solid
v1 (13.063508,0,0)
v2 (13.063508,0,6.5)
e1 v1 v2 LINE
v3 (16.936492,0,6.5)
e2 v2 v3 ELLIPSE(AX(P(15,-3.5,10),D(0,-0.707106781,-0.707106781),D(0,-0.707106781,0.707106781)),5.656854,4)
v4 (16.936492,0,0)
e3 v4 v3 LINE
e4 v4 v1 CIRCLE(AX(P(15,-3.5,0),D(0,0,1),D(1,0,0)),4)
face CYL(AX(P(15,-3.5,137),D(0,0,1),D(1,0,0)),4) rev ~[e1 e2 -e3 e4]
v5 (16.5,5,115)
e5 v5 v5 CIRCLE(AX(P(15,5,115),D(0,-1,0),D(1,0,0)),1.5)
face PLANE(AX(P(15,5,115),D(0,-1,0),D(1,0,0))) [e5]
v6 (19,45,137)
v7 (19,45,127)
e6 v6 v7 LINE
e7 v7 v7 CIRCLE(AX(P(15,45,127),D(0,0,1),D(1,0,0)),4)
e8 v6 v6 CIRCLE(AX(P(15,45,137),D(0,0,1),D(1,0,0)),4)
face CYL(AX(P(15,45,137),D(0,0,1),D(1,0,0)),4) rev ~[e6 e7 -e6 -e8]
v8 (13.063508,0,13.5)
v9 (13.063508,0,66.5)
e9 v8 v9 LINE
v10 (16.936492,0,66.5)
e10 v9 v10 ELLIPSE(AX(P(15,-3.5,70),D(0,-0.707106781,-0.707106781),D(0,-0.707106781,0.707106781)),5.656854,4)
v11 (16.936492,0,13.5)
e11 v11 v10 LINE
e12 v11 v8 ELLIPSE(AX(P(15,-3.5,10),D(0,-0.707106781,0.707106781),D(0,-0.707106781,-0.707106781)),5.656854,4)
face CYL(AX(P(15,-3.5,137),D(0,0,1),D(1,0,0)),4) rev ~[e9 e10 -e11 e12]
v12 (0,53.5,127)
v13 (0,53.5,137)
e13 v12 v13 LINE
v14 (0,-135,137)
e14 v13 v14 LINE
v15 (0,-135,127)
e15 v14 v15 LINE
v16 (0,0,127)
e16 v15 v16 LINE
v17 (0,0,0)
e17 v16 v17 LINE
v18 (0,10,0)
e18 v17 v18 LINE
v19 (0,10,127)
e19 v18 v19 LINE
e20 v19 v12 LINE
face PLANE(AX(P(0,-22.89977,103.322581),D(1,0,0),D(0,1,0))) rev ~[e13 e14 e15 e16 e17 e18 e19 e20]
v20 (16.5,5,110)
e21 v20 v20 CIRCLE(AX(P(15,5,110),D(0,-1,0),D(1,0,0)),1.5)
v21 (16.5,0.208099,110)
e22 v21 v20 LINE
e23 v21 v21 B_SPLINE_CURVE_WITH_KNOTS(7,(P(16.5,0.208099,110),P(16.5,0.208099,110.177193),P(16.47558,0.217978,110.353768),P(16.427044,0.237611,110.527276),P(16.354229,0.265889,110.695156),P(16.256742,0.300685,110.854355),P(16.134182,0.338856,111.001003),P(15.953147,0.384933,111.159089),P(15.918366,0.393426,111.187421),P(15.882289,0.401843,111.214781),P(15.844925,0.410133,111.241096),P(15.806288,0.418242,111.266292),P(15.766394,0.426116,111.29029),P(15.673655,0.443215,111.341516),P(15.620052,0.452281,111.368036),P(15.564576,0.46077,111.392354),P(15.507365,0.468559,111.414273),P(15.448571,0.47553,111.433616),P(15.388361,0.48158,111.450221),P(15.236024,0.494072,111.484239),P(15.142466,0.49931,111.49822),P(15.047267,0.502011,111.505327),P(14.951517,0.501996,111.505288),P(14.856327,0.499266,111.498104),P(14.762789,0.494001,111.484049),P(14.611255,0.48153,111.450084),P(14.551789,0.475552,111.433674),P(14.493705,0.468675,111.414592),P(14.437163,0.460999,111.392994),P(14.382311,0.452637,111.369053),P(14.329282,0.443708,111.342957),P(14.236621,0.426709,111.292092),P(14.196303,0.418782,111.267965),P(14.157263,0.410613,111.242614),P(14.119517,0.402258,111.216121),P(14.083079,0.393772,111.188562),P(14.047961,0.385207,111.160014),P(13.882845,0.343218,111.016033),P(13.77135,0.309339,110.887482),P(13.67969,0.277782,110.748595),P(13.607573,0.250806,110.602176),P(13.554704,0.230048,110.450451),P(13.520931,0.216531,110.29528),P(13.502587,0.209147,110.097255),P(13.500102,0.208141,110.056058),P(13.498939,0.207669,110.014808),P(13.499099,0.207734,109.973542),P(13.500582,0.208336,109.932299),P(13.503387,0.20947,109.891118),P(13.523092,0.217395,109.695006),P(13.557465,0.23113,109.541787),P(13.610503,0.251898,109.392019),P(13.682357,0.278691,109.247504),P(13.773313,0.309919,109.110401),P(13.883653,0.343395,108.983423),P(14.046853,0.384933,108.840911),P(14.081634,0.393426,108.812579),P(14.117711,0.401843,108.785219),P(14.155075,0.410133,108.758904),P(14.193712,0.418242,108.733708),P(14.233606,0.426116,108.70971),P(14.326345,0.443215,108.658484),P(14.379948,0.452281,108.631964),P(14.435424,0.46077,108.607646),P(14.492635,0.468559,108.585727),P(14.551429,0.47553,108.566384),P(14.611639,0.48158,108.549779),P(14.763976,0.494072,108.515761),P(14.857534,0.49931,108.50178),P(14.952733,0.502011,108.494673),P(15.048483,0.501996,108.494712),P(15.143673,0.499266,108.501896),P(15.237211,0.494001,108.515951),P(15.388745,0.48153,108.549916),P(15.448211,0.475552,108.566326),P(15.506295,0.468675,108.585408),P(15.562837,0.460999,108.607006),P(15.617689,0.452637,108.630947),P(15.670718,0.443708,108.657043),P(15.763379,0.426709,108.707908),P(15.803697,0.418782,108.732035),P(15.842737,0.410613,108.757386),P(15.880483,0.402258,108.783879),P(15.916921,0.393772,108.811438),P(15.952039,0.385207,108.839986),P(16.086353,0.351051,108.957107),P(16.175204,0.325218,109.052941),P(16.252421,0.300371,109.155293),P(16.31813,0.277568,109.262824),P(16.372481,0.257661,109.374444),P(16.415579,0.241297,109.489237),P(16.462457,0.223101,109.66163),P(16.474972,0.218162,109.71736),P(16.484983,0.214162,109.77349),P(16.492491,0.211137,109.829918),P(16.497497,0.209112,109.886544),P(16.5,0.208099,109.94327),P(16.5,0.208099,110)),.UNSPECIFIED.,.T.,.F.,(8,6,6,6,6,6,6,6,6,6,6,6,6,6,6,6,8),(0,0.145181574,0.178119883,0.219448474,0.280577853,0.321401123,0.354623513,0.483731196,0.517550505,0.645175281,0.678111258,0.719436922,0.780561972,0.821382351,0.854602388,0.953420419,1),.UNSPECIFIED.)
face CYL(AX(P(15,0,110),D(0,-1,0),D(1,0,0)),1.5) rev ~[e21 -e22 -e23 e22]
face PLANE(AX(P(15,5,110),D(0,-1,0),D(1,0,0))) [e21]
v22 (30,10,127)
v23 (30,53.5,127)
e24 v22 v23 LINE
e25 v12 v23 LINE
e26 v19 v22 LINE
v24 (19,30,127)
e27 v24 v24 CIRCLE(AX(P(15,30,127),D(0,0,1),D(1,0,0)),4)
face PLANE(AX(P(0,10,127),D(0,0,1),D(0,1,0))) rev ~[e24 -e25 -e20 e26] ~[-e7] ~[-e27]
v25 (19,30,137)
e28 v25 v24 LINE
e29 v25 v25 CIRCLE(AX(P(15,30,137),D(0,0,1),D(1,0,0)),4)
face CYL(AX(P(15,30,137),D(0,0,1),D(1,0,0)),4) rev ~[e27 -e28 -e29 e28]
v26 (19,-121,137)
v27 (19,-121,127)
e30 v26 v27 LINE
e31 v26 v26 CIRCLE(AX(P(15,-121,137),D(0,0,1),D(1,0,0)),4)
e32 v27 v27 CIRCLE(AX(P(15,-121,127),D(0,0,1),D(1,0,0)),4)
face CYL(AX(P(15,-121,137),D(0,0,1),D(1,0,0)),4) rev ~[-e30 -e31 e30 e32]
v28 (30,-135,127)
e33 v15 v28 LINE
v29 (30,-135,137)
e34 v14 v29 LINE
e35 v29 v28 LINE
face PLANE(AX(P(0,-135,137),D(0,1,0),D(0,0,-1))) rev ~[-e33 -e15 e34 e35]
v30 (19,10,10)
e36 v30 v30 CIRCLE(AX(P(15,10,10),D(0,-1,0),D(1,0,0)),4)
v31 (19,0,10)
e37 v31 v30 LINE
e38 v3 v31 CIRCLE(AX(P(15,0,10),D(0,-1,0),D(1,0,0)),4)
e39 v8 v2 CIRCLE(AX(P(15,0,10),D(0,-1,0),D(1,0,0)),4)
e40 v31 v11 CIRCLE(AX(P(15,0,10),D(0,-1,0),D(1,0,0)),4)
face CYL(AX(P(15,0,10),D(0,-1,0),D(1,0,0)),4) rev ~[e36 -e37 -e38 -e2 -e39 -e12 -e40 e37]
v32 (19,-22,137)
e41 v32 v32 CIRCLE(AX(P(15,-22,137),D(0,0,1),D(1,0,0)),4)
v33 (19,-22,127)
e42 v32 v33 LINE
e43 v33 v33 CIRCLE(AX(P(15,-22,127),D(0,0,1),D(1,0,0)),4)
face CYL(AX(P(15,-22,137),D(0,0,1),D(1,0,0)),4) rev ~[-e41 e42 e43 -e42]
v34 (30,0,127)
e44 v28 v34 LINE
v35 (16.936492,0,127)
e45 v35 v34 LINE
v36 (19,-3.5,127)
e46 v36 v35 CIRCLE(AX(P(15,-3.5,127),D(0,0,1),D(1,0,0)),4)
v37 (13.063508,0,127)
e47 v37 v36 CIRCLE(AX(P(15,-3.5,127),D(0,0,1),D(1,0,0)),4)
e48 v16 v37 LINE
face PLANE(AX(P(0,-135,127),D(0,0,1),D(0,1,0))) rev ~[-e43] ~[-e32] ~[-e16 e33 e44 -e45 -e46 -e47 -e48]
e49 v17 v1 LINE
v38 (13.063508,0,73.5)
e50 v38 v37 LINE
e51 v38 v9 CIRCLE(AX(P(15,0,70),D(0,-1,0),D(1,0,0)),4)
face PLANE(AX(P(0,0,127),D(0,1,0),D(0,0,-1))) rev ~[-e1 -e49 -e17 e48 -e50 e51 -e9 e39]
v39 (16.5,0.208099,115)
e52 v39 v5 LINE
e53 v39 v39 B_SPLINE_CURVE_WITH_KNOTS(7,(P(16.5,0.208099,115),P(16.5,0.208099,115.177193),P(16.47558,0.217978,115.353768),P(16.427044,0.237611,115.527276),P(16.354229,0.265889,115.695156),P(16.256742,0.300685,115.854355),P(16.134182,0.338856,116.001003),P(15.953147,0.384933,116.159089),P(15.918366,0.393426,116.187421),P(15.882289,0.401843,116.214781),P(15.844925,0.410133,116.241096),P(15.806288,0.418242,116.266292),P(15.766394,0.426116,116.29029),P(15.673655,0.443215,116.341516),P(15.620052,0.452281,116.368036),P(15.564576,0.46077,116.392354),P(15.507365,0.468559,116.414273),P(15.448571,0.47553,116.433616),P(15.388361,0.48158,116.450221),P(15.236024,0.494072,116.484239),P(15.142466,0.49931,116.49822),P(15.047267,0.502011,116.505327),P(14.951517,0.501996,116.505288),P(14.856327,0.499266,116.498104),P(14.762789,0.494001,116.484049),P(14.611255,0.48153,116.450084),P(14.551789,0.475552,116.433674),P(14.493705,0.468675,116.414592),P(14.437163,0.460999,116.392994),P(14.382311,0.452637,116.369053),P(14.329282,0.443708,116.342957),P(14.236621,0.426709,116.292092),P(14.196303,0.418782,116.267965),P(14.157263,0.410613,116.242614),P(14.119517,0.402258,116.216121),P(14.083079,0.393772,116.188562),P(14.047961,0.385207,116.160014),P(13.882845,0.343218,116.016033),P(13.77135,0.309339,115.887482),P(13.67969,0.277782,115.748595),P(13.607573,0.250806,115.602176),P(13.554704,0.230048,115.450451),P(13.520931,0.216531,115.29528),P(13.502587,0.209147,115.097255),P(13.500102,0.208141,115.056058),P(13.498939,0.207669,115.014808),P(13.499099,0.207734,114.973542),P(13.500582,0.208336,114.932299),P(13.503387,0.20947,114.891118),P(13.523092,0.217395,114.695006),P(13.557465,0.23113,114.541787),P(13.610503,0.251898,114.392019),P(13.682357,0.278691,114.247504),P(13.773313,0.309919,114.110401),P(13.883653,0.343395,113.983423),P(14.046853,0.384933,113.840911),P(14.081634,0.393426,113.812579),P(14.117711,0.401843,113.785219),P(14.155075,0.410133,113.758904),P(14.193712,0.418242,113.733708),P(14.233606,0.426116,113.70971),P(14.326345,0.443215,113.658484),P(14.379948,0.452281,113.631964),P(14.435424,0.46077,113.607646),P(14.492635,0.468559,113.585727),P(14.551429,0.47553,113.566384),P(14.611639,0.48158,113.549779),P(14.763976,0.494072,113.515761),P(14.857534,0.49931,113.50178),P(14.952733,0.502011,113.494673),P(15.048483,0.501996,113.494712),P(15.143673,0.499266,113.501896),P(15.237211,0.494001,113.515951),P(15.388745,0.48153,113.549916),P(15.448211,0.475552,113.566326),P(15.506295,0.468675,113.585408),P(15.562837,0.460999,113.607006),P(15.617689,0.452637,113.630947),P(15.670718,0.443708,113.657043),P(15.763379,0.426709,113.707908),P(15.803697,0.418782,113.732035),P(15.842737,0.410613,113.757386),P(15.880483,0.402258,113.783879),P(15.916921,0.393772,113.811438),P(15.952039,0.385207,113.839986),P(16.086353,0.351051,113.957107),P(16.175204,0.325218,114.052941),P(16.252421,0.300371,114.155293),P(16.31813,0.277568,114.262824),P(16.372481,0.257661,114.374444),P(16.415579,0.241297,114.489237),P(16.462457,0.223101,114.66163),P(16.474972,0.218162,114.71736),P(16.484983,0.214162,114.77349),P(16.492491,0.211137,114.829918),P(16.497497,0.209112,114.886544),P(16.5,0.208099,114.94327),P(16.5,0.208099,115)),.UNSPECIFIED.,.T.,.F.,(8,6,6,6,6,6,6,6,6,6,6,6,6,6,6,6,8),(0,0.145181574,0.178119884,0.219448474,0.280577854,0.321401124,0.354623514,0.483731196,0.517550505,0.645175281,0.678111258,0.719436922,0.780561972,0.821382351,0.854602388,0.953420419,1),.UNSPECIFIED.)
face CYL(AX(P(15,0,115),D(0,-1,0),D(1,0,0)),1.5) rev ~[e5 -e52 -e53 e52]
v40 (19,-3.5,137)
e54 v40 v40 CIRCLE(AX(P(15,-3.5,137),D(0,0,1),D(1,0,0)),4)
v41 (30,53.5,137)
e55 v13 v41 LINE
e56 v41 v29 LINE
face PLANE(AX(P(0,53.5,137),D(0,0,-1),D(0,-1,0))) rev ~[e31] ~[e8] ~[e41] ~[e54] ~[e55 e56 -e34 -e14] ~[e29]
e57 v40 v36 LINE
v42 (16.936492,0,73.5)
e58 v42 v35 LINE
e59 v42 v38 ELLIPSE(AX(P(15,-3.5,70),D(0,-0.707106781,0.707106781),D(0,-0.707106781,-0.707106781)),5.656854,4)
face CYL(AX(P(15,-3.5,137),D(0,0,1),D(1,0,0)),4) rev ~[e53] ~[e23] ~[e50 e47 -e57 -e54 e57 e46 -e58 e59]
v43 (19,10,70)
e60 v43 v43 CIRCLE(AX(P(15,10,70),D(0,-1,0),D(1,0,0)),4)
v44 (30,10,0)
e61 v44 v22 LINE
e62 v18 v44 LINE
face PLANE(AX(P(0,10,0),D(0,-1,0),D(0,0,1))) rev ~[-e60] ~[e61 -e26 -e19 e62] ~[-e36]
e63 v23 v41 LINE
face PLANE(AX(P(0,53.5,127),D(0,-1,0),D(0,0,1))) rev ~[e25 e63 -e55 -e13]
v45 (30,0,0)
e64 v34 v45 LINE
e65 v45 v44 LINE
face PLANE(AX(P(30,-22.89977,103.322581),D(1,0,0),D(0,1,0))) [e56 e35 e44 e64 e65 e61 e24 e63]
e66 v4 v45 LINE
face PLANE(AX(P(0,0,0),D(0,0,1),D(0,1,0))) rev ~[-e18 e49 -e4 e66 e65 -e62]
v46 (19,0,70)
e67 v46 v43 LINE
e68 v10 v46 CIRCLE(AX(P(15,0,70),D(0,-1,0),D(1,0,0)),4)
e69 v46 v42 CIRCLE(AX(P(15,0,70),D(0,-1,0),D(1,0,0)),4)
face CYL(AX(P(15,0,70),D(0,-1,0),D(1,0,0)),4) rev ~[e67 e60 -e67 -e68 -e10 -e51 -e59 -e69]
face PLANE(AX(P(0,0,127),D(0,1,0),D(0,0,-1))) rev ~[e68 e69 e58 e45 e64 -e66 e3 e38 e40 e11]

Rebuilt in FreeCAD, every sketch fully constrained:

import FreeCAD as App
import Part
import Sketcher
from FreeCAD import Vector

doc = App.newDocument("Part")
body = doc.addObject("PartDesign::Body", "Body")

# Sketch on YZ plane
sketch1 = body.newObject("Sketcher::SketchObject", "Sketch")
sketch1.AttachmentSupport = (doc.getObject("YZ_Plane"), [""])
sketch1.MapMode = "FlatFace"
sketch1.addGeometry([
    Part.LineSegment(Vector(0, 127, 0), Vector(0, 0, 0)),  # 0
    Part.LineSegment(Vector(0, 0, 0), Vector(10, 0, 0)),  # 1
    Part.LineSegment(Vector(10, 0, 0), Vector(10, 127, 0)),  # 2
    Part.LineSegment(Vector(10, 127, 0), Vector(53.5, 127, 0)),  # 3
    Part.LineSegment(Vector(53.5, 127, 0), Vector(53.5, 137, 0)),  # 4
    Part.LineSegment(Vector(53.5, 137, 0), Vector(-135, 137, 0)),  # 5
    Part.LineSegment(Vector(-135, 137, 0), Vector(-135, 127, 0)),  # 6
    Part.LineSegment(Vector(-135, 127, 0), Vector(0, 127, 0)),  # 7
], False)
sketch1.addConstraint([
    Sketcher.Constraint("Coincident", 0, 2, 1, 1),
    Sketcher.Constraint("Coincident", 1, 2, 2, 1),
    Sketcher.Constraint("Coincident", 2, 2, 3, 1),
    Sketcher.Constraint("Coincident", 3, 2, 4, 1),
    Sketcher.Constraint("Coincident", 4, 2, 5, 1),
    Sketcher.Constraint("Coincident", 5, 2, 6, 1),
    Sketcher.Constraint("Coincident", 6, 2, 7, 1),
    Sketcher.Constraint("Coincident", 7, 2, 0, 1),
    Sketcher.Constraint("Vertical", 0),
    Sketcher.Constraint("Horizontal", 1),
    Sketcher.Constraint("Vertical", 2),
    Sketcher.Constraint("Horizontal", 3),
    Sketcher.Constraint("Vertical", 4),
    Sketcher.Constraint("Horizontal", 5),
    Sketcher.Constraint("Vertical", 6),
    Sketcher.Constraint("Horizontal", 7),
    Sketcher.Constraint("Coincident", 0, 2, -1, 1),
    Sketcher.Constraint("Horizontal", 3, 2, 6, 2),
    Sketcher.Constraint("Equal", 1, 4),
    Sketcher.Constraint("DistanceX", 1, 1, 1, 2, 10.0),
    Sketcher.Constraint("DistanceX", 7, 1, 7, 2, 135.0),
    Sketcher.Constraint("DistanceY", 0, 2, 0, 1, 127.0),
    Sketcher.Constraint("DistanceX", 3, 1, 3, 2, 43.5),
])
pad1 = body.newObject("PartDesign::Pad", "Pad")
pad1.Profile = sketch1
pad1.Length = 30

# Sketch on XZ plane
sketch2 = body.newObject("Sketcher::SketchObject", "Sketch001")
sketch2.AttachmentSupport = (doc.getObject("XZ_Plane"), [""])
sketch2.MapMode = "FlatFace"
sketch2.addGeometry([
    Part.Circle(Vector(15, 70, 0), Vector(0, 0, 1), 4),
    Part.Circle(Vector(15, 10, 0), Vector(0, 0, 1), 4),
], False)
sketch2.addConstraint([
    Sketcher.Constraint("Equal", 0, 1),
    Sketcher.Constraint("Vertical", 0, 3, 1, 3),
    Sketcher.Constraint("Diameter", 0, 8.0),
    Sketcher.Constraint("DistanceX", -1, 1, 0, 3, 15.0),
    Sketcher.Constraint("DistanceY", -1, 1, 0, 3, 70.0),
    Sketcher.Constraint("DistanceY", -1, 1, 1, 3, 10.0),
])
pocket1 = body.newObject("PartDesign::Pocket", "Pocket")
pocket1.Profile = sketch2
pocket1.Type = "ThroughAll"

# Sketch on XY plane
sketch3 = body.newObject("Sketcher::SketchObject", "Sketch002")
sketch3.AttachmentSupport = (doc.getObject("XY_Plane"), [""])
sketch3.MapMode = "FlatFace"
sketch3.AttachmentOffset = App.Placement(Vector(0, 0, 137), App.Rotation())
sketch3.addGeometry([
    Part.Circle(Vector(15, 45, 0), Vector(0, 0, 1), 4),  # 0
    Part.Circle(Vector(15, 30, 0), Vector(0, 0, 1), 4),  # 1
    Part.Circle(Vector(15, -3.5, 0), Vector(0, 0, 1), 4),  # 2
    Part.Circle(Vector(15, -22, 0), Vector(0, 0, 1), 4),  # 3
    Part.Circle(Vector(15, -121, 0), Vector(0, 0, 1), 4),  # 4
], False)
sketch3.addConstraint([
    Sketcher.Constraint("Equal", 0, 1),
    Sketcher.Constraint("Equal", 1, 2),
    Sketcher.Constraint("Equal", 2, 3),
    Sketcher.Constraint("Equal", 3, 4),
    Sketcher.Constraint("Vertical", 0, 3, 1, 3),
    Sketcher.Constraint("Vertical", 1, 3, 2, 3),
    Sketcher.Constraint("Vertical", 2, 3, 3, 3),
    Sketcher.Constraint("Vertical", 3, 3, 4, 3),
    Sketcher.Constraint("Diameter", 0, 8.0),
    Sketcher.Constraint("DistanceX", -1, 1, 0, 3, 15.0),
    Sketcher.Constraint("DistanceY", -1, 1, 0, 3, 45.0),
    Sketcher.Constraint("DistanceY", -1, 1, 1, 3, 30.0),
    Sketcher.Constraint("DistanceY", 3, 3, -1, 1, 22.0),
    Sketcher.Constraint("DistanceY", 4, 3, -1, 1, 121.0),
    Sketcher.Constraint("DistanceY", 2, 3, -1, 1, 3.5),
])
pocket2 = body.newObject("PartDesign::Pocket", "Pocket001")
pocket2.Profile = sketch3
pocket2.Type = "ThroughAll"

# Sketch on XZ plane
sketch4 = body.newObject("Sketcher::SketchObject", "Sketch003")
sketch4.AttachmentSupport = (doc.getObject("XZ_Plane"), [""])
sketch4.MapMode = "FlatFace"
sketch4.addGeometry([
    Part.Circle(Vector(15, 110, 0), Vector(0, 0, 1), 1.5),
    Part.Circle(Vector(15, 115, 0), Vector(0, 0, 1), 1.5),
], False)
sketch4.addConstraint([
    Sketcher.Constraint("Equal", 0, 1),
    Sketcher.Constraint("Vertical", 0, 3, 1, 3),
    Sketcher.Constraint("Diameter", 0, 3.0),
    Sketcher.Constraint("DistanceX", -1, 1, 0, 3, 15.0),
    Sketcher.Constraint("DistanceY", -1, 1, 0, 3, 110.0),
    Sketcher.Constraint("DistanceY", -1, 1, 1, 3, 115.0),
])
pocket3 = body.newObject("PartDesign::Pocket", "Pocket002")
pocket3.Profile = sketch4
pocket3.Length = 5

doc.recompute()
